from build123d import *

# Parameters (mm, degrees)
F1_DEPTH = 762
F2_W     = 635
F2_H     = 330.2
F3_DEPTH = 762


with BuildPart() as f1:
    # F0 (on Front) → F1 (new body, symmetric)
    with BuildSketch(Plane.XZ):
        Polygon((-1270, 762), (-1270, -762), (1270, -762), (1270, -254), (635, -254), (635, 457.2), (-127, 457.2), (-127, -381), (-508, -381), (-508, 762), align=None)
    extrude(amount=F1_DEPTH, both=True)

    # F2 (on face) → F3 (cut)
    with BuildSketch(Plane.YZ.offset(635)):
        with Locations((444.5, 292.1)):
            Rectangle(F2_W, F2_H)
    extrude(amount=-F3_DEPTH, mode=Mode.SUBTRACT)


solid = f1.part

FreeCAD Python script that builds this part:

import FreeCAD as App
import Part
import Sketcher
from FreeCAD import Vector
Q = App.Units.Quantity


def add_polygon(sketch, points):
    """Adds a closed chain of lines whose ends are joined by coincident constraints."""
    first, n = sketch.GeometryCount, len(points)
    for a, b in zip(points, points[1:] + points[:1]):
        sketch.addGeometry(Part.LineSegment(App.Vector(*a, 0), App.Vector(*b, 0)), False)
    for i in range(n):
        sketch.addConstraint(Sketcher.Constraint("Coincident", first + i, 2, first + (i + 1) % n, 1))

doc = App.newDocument("Part")
body = doc.addObject("PartDesign::Body", "Body")

sketch1 = body.newObject("Sketcher::SketchObject", "Sketch")
sketch1.AttachmentSupport = (doc.getObject("XZ_Plane"), [""])
sketch1.MapMode = "FlatFace"
add_polygon(sketch1, [(-1270, 762), (-1270, -762), (1270, -762), (1270, -254), (635, -254), (635, 457), (-127, 457), (-127, -381), (-508, -381), (-508, 762)])
sketch1.addConstraint([
    Sketcher.Constraint("Vertical", 0),
    Sketcher.Constraint("Horizontal", 1),
    Sketcher.Constraint("Vertical", 2),
    Sketcher.Constraint("Horizontal", 3),
    Sketcher.Constraint("Vertical", 4),
    Sketcher.Constraint("Horizontal", 5),
    Sketcher.Constraint("Vertical", 6),
    Sketcher.Constraint("Horizontal", 7),
    Sketcher.Constraint("Vertical", 8),
    Sketcher.Constraint("Horizontal", 9),
    Sketcher.Constraint("Symmetric", 1, 2, 9, 2, -1, 1),
    Sketcher.Constraint("Equal", 5, 9),
    Sketcher.Constraint("DistanceX", 1, 1, 1, 2, Q("100 in")),
    Sketcher.Constraint("DistanceX", 3, 2, 3, 1, Q("25 in")),
    Sketcher.Constraint("DistanceX", 5, 2, 5, 1, Q("30 in")),
    Sketcher.Constraint("DistanceY", 0, 2, 0, 1, Q("60 in")),
    Sketcher.Constraint("DistanceY", 2, 1, 2, 2, Q("20 in")),
    Sketcher.Constraint("DistanceY", 4, 1, 4, 2, Q("28 in")),
    Sketcher.Constraint("DistanceY", 6, 2, 6, 1, Q("33 in")),
])
pad1 = body.newObject("PartDesign::Pad", "Pad")
pad1.Profile = sketch1
pad1.Length = Q("60 in")
pad1.Midplane = True

sketch2 = body.newObject("Sketcher::SketchObject", "Sketch001")
sketch2.AttachmentSupport = (doc.getObject("YZ_Plane"), [""])
sketch2.MapMode = "FlatFace"
sketch2.AttachmentOffset = App.Placement(Vector(0, 0, 25 * 25.4), App.Rotation())
add_polygon(sketch2, [(127, 457), (127, 127), (762, 127), (762, 457)])
sketch2.addConstraint([
    Sketcher.Constraint("Vertical", 0),
    Sketcher.Constraint("Horizontal", 1),
    Sketcher.Constraint("Vertical", 2),
    Sketcher.Constraint("Horizontal", 3),
    Sketcher.Constraint("DistanceX", 1, 1, 1, 2, Q("25 in")),
    Sketcher.Constraint("DistanceY", 0, 2, 0, 1, Q("13 in")),
    Sketcher.Constraint("DistanceX", -1, 1, 0, 2, Q("5 in")),
    Sketcher.Constraint("DistanceY", -1, 1, 0, 2, Q("5 in")),
])
pocket1 = body.newObject("PartDesign::Pocket", "Pocket")
pocket1.Profile = sketch2
pocket1.Length = Q("30 in")

doc.recompute()
